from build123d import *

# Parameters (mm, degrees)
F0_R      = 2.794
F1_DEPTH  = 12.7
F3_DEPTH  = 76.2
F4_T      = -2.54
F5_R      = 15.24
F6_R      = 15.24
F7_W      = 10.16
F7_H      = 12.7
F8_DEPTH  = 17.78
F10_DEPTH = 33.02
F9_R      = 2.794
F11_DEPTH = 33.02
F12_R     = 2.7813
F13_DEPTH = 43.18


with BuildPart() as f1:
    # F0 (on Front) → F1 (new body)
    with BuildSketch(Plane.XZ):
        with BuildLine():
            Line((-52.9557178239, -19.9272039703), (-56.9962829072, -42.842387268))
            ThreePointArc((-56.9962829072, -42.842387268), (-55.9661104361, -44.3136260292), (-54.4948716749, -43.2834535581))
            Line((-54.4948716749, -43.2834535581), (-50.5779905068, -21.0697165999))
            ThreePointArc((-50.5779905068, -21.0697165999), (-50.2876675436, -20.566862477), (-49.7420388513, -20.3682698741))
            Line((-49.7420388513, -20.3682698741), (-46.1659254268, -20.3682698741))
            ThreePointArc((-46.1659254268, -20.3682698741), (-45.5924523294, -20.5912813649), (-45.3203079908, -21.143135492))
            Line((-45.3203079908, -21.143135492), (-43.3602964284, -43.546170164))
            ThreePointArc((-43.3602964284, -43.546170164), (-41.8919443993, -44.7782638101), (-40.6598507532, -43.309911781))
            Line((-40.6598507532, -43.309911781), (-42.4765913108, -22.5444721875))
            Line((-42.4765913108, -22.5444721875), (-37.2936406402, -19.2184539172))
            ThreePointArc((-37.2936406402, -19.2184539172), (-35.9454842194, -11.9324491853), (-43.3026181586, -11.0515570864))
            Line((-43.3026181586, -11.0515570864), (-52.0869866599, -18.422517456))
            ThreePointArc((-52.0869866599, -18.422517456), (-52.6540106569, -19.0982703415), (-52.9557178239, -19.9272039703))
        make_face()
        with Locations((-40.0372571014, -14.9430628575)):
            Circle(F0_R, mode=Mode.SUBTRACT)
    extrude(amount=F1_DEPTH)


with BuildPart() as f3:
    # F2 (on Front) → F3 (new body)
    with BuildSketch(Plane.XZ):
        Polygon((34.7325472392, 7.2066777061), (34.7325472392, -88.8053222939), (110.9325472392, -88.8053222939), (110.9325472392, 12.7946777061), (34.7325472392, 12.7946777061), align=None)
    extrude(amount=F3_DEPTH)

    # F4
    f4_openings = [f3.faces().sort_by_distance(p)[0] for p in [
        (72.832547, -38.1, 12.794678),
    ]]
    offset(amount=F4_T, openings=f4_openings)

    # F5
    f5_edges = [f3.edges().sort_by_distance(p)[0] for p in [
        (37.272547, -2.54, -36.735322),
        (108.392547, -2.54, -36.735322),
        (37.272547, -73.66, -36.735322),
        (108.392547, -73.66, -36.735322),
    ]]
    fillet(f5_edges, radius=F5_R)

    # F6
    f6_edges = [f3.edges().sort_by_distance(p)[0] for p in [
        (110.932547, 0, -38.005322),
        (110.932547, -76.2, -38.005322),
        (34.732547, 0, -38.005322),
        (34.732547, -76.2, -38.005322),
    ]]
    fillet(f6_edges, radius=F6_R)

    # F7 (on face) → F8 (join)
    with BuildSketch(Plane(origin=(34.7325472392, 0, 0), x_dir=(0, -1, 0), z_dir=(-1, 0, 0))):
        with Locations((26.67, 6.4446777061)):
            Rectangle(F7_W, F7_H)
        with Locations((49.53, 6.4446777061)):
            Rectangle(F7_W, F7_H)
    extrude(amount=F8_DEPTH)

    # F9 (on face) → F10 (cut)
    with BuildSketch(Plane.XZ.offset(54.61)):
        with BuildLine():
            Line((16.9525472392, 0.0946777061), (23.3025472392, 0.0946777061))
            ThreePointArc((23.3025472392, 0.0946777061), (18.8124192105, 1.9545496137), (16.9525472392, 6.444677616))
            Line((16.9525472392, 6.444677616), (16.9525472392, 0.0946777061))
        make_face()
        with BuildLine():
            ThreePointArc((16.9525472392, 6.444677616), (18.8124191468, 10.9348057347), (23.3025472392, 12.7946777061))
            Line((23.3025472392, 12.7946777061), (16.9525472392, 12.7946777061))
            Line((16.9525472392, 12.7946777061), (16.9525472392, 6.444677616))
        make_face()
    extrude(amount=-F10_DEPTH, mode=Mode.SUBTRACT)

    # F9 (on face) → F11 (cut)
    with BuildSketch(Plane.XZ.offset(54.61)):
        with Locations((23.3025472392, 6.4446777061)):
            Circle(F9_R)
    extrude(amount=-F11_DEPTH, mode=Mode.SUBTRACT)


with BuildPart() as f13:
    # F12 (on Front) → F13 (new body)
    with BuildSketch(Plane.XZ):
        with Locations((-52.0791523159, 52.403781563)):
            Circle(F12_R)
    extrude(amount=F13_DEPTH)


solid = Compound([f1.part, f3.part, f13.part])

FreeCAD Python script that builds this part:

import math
import FreeCAD as App
import Part
import Sketcher
from FreeCAD import Vector
Q = App.Units.Quantity


def edges_at(feature, points):
    """Names of the edges that pass closest to the given points."""
    edges = feature.Shape.Edges
    near = lambda p: min(range(len(edges)), key=lambda i: edges[i].distToShape(Part.Vertex(*p))[0])
    return sorted({f"Edge{near(p) + 1}" for p in points})


def faces_at(feature, points):
    """Names of the faces that lie closest to the given points."""
    faces = feature.Shape.Faces
    near = lambda p: min(range(len(faces)), key=lambda i: faces[i].distToShape(Part.Vertex(*p))[0])
    return sorted({f"Face{near(p) + 1}" for p in points})

doc = App.newDocument("Part")
body = doc.addObject("PartDesign::Body", "Body")

sketch1 = body.newObject("Sketcher::SketchObject", "Sketch")
sketch1.AttachmentSupport = (doc.getObject("XZ_Plane"), [""])
sketch1.MapMode = "FlatFace"
sketch1.addGeometry([
    Part.LineSegment(Vector(-53, -19.9, 0), Vector(-57, -42.8, 0)),
    Part.ArcOfCircle(Part.Circle(Vector(-55.7, -43.1, 0), Vector(0, 0, 1), 1.3), math.radians(170), math.radians(350)),
    Part.LineSegment(Vector(-54.5, -43.3, 0), Vector(-50.6, -21.1, 0)),
    Part.ArcOfCircle(Part.Circle(Vector(-49.7, -21.2, 0), Vector(0, 0, 1), 0.8), math.radians(90), math.radians(170)),
    Part.LineSegment(Vector(-49.7, -20.4, 0), Vector(-46.2, -20.4, 0)),
    Part.ArcOfCircle(Part.Circle(Vector(-46.2, -21.2, 0), Vector(0, 0, 1), 0.8), math.radians(5), math.radians(90)),
    Part.LineSegment(Vector(-45.3, -21.1, 0), Vector(-43.4, -43.5, 0)),
    Part.ArcOfCircle(Part.Circle(Vector(-42, -43.4, 0), Vector(0, 0, 1), 1.4), math.radians(-175), math.radians(5)),
    Part.LineSegment(Vector(-40.7, -43.3, 0), Vector(-42.5, -22.5, 0)),
    Part.LineSegment(Vector(-42.5, -22.5, 0), Vector(-37.3, -19.2, 0)),
    Part.ArcOfCircle(Part.Circle(Vector(-40, -14.9, 0), Vector(0, 0, 1), 5.1), math.radians(-57), math.radians(130)),
    Part.LineSegment(Vector(-43.3, -11.1, 0), Vector(-52.1, -18.4, 0)),
    Part.ArcOfCircle(Part.Circle(Vector(-50.5, -20.4, 0), Vector(0, 0, 1), 2.5), math.radians(130), math.radians(170)),
    Part.Circle(Vector(-40, -14.9, 0), Vector(0, 0, 1), 2.8),
], False)
sketch1.addConstraint([
    Sketcher.Constraint("Tangent", 0, 2, 1, 1),
    Sketcher.Constraint("Tangent", 1, 2, 2, 1),
    Sketcher.Constraint("Tangent", 2, 2, 3, 2),
    Sketcher.Constraint("Tangent", 3, 1, 4, 1),
    Sketcher.Constraint("Tangent", 4, 2, 5, 2),
    Sketcher.Constraint("Tangent", 5, 1, 6, 1),
    Sketcher.Constraint("Tangent", 6, 2, 7, 1),
    Sketcher.Constraint("Tangent", 7, 2, 8, 1),
    Sketcher.Constraint("Coincident", 8, 2, 9, 1),
    Sketcher.Constraint("Tangent", 9, 2, 10, 1),
    Sketcher.Constraint("Tangent", 10, 2, 11, 1),
    Sketcher.Constraint("Tangent", 11, 2, 12, 1),
    Sketcher.Constraint("Tangent", 12, 2, 0, 1),
    Sketcher.Constraint("Horizontal", 4),
    Sketcher.Constraint("Coincident", 13, 3, 10, 3),
    Sketcher.Constraint("Equal", 3, 5),
    Sketcher.Constraint("Parallel", 0, 2),
    Sketcher.Constraint("Parallel", 6, 8),
    Sketcher.Constraint("Horizontal", 12, 3, 3, 1),
    Sketcher.Constraint("Radius", 10, Q("0.2 in")),
    Sketcher.Constraint("Radius", 12, Q("0.1 in")),
    Sketcher.Constraint("Diameter", 13, Q("0.22 in")),
    Sketcher.Constraint("Radius", 1, Q("0.05 in")),
    Sketcher.Constraint("Angle", 0, Q("-100 deg")),
    Sketcher.Constraint("Angle", 6, Q("-85 deg")),
    Sketcher.Constraint("Angle", 11, Q("-140 deg")),
    Sketcher.Constraint("Radius", 7, 1.35538),
    Sketcher.Constraint("Radius", 3, 0.848848),
    Sketcher.Constraint("DistanceX", 0, 2, 3, 3, Q("0.2856002 in")),
    Sketcher.Constraint("DistanceX", 1, 2, 7, 3, 12.484798),
    Sketcher.Constraint("DistanceX", 12, 3, 5, 1, 5.133998),
    Sketcher.Constraint("Distance", 8, 20.84476),
    Sketcher.Constraint("Distance", 9, 6.158358),
    Sketcher.Constraint("DistanceY", 1, 3, -1, 1, 43.06292),
    Sketcher.Constraint("DistanceX", 3, 3, -1, 1, 49.742039),
])
pad1 = body.newObject("PartDesign::Pad", "Pad")
pad1.Profile = sketch1
pad1.Length = Q("0.5 in")
body2 = doc.addObject("PartDesign::Body", "Body001")

sketch2 = body2.newObject("Sketcher::SketchObject", "Sketch001")
sketch2.AttachmentSupport = (doc.getObject("XZ_Plane001"), [""])
sketch2.MapMode = "FlatFace"
sketch2.addGeometry([
    Part.LineSegment(Vector(35, -89, 0), Vector(111, -89, 0)),
    Part.LineSegment(Vector(111, -89, 0), Vector(111, 13, 0)),
    Part.LineSegment(Vector(111, 13, 0), Vector(35, 13, 0)),
    Part.LineSegment(Vector(35, 13, 0), Vector(35, -89, 0)),
], False)
sketch2.addConstraint([
    Sketcher.Constraint("Coincident", 0, 2, 1, 1),
    Sketcher.Constraint("Coincident", 1, 2, 2, 1),
    Sketcher.Constraint("Coincident", 2, 2, 3, 1),
    Sketcher.Constraint("Coincident", 3, 2, 0, 1),
    Sketcher.Constraint("Horizontal", 0),
    Sketcher.Constraint("Vertical", 1),
    Sketcher.Constraint("Horizontal", 2),
    Sketcher.Constraint("Vertical", 3),
    Sketcher.Constraint("DistanceX", 0, 1, 0, 2, Q("3 in")),
    Sketcher.Constraint("DistanceY", 1, 1, 1, 2, Q("4 in")),
    Sketcher.Constraint("DistanceX", -1, 1, 0, 2, 110.932547),
    Sketcher.Constraint("DistanceY", 0, 2, -1, 1, 88.805322),
])
pad2 = body2.newObject("PartDesign::Pad", "Pad001")
pad2.Profile = sketch2
pad2.Length = Q("3 in")
doc.recompute()

thickness = body2.newObject("PartDesign::Thickness", "Thickness")
thickness.Base = (pad2, faces_at(pad2, [(72.833, -38.1, 12.795)]))
thickness.Value = Q("0.1 in")
thickness.Reversed = True
thickness.Join = "Arc"
doc.recompute()

fillet = body2.newObject("PartDesign::Fillet", "Fillet")
fillet.Base = (thickness, edges_at(thickness, [
    (37.273, -2.54, -36.735),
    (108.393, -2.54, -36.735),
    (37.273, -73.66, -36.735),
    (108.393, -73.66, -36.735),
]))
fillet.Radius = Q("0.6 in")
doc.recompute()

fillet2 = body2.newObject("PartDesign::Fillet", "Fillet001")
fillet2.Base = (fillet, edges_at(fillet, [
    (110.933, 0, -38.005),
    (110.933, -76.2, -38.005),
    (34.733, 0, -38.005),
    (34.733, -76.2, -38.005),
]))
fillet2.Radius = Q("0.6 in")

sketch3 = body2.newObject("Sketcher::SketchObject", "Sketch002")
sketch3.AttachmentSupport = (doc.getObject("YZ_Plane001"), [""])
sketch3.MapMode = "FlatFace"
sketch3.AttachmentOffset = App.Placement(Vector(0, 0, 34.732547), App.Rotation())
sketch3.addGeometry([
    Part.LineSegment(Vector(-22, 13, 0), Vector(-22, 0, 0)),
    Part.LineSegment(Vector(-22, 0, 0), Vector(-32, 0, 0)),
    Part.LineSegment(Vector(-32, 0, 0), Vector(-32, 13, 0)),
    Part.LineSegment(Vector(-32, 13, 0), Vector(-22, 13, 0)),
    Part.LineSegment(Vector(-44, 13, 0), Vector(-44, 0, 0)),
    Part.LineSegment(Vector(-44, 0, 0), Vector(-55, 0, 0)),
    Part.LineSegment(Vector(-55, 0, 0), Vector(-55, 13, 0)),
    Part.LineSegment(Vector(-55, 13, 0), Vector(-44, 13, 0)),
], False)
sketch3.addConstraint([
    Sketcher.Constraint("Coincident", 0, 2, 1, 1),
    Sketcher.Constraint("Coincident", 1, 2, 2, 1),
    Sketcher.Constraint("Coincident", 2, 2, 3, 1),
    Sketcher.Constraint("Coincident", 3, 2, 0, 1),
    Sketcher.Constraint("Coincident", 4, 2, 5, 1),
    Sketcher.Constraint("Coincident", 5, 2, 6, 1),
    Sketcher.Constraint("Coincident", 6, 2, 7, 1),
    Sketcher.Constraint("Coincident", 7, 2, 4, 1),
    Sketcher.Constraint("Vertical", 0),
    Sketcher.Constraint("Horizontal", 1),
    Sketcher.Constraint("Vertical", 2),
    Sketcher.Constraint("Horizontal", 3),
    Sketcher.Constraint("Vertical", 4),
    Sketcher.Constraint("Horizontal", 5),
    Sketcher.Constraint("Vertical", 6),
    Sketcher.Constraint("Horizontal", 7),
    Sketcher.Constraint("Horizontal", 1, 2, 4, 2),
    Sketcher.Constraint("Horizontal", 3, 2, 6, 2),
    Sketcher.Constraint("Equal", 3, 5),
    Sketcher.Constraint("DistanceX", 1, 2, 1, 1, Q("0.4 in")),
    Sketcher.Constraint("DistanceY", 0, 2, 0, 1, Q("0.5 in")),
    Sketcher.Constraint("DistanceX", 4, 2, 1, 2, Q("0.5 in")),
    Sketcher.Constraint("DistanceX", 0, 2, -1, 1, Q("0.85 in")),
    Sketcher.Constraint("DistanceY", -1, 1, 0, 2, 0.094678),
])
pad3 = body2.newObject("PartDesign::Pad", "Pad002")
pad3.Profile = sketch3
pad3.Length = Q("0.7 in")
pad3.Reversed = True

sketch4 = body2.newObject("Sketcher::SketchObject", "Sketch003")
sketch4.AttachmentSupport = (doc.getObject("XZ_Plane001"), [""])
sketch4.MapMode = "FlatFace"
sketch4.AttachmentOffset = App.Placement(Vector(0, 0, 2.15 * 25.4), App.Rotation())
sketch4.addGeometry([
    Part.LineSegment(Vector(17, 0, 0), Vector(23, 0, 0)),
    Part.ArcOfCircle(Part.Circle(Vector(23, 6, 0), Vector(0, 0, 1), 6), math.radians(-180), math.radians(-90)),
    Part.LineSegment(Vector(17, 6, 0), Vector(17, 0, 0)),
    Part.ArcOfCircle(Part.Circle(Vector(23, 6, 0), Vector(0, 0, 1), 6), math.radians(90), math.radians(180)),
    Part.LineSegment(Vector(23, 13, 0), Vector(17, 13, 0)),
    Part.LineSegment(Vector(17, 13, 0), Vector(17, 6, 0)),
], False)
sketch4.addConstraint([
    Sketcher.Constraint("Tangent", 0, 2, 1, 2),
    Sketcher.Constraint("Tangent", 1, 1, 2, 1),
    Sketcher.Constraint("Coincident", 2, 2, 0, 1),
    Sketcher.Constraint("Tangent", 3, 1, 4, 1),
    Sketcher.Constraint("Coincident", 4, 2, 5, 1),
    Sketcher.Constraint("Tangent", 5, 2, 3, 2),
    Sketcher.Constraint("Horizontal", 0),
    Sketcher.Constraint("Vertical", 2),
    Sketcher.Constraint("Horizontal", 4),
    Sketcher.Constraint("Vertical", 5),
    Sketcher.Constraint("Coincident", 3, 3, 1, 3),
    Sketcher.Constraint("Equal", 1, 3),
    Sketcher.Constraint("Radius", 1, Q("0.25 in")),
    Sketcher.Constraint("DistanceX", -1, 1, 1, 3, 23.302547),
    Sketcher.Constraint("DistanceY", -1, 1, 1, 3, 6.444678),
])
pocket1 = body2.newObject("PartDesign::Pocket", "Pocket")
pocket1.Profile = sketch4
pocket1.Length = Q("1.3 in")

sketch5 = body2.newObject("Sketcher::SketchObject", "Sketch004")
sketch5.AttachmentSupport = (doc.getObject("XZ_Plane001"), [""])
sketch5.MapMode = "FlatFace"
sketch5.AttachmentOffset = App.Placement(Vector(0, 0, 2.15 * 25.4), App.Rotation())
sketch5.addGeometry(Part.Circle(Vector(23.3, 6.4, 0), Vector(0, 0, 1), 2.8), False)
sketch5.addConstraint([
    Sketcher.Constraint("Diameter", 0, Q("0.22 in")),
    Sketcher.Constraint("DistanceX", -1, 1, 0, 3, 23.302547),
    Sketcher.Constraint("DistanceY", -1, 1, 0, 3, 6.444678),
])
pocket2 = body2.newObject("PartDesign::Pocket", "Pocket001")
pocket2.Profile = sketch5
pocket2.Length = Q("1.3 in")
body3 = doc.addObject("PartDesign::Body", "Body002")

sketch6 = body3.newObject("Sketcher::SketchObject", "Sketch005")
sketch6.AttachmentSupport = (doc.getObject("XZ_Plane002"), [""])
sketch6.MapMode = "FlatFace"
sketch6.addGeometry(Part.Circle(Vector(-52.1, 52.4, 0), Vector(0, 0, 1), 2.8), False)
sketch6.addConstraint([
    Sketcher.Constraint("Diameter", 0, Q("0.219 in")),
    Sketcher.Constraint("DistanceY", -1, 1, 0, 3, 52.403782),
    Sketcher.Constraint("DistanceX", 0, 3, -1, 1, 52.079152),
])
pad4 = body3.newObject("PartDesign::Pad", "Pad003")
pad4.Profile = sketch6
pad4.Length = Q("1.7 in")

doc.recompute()
